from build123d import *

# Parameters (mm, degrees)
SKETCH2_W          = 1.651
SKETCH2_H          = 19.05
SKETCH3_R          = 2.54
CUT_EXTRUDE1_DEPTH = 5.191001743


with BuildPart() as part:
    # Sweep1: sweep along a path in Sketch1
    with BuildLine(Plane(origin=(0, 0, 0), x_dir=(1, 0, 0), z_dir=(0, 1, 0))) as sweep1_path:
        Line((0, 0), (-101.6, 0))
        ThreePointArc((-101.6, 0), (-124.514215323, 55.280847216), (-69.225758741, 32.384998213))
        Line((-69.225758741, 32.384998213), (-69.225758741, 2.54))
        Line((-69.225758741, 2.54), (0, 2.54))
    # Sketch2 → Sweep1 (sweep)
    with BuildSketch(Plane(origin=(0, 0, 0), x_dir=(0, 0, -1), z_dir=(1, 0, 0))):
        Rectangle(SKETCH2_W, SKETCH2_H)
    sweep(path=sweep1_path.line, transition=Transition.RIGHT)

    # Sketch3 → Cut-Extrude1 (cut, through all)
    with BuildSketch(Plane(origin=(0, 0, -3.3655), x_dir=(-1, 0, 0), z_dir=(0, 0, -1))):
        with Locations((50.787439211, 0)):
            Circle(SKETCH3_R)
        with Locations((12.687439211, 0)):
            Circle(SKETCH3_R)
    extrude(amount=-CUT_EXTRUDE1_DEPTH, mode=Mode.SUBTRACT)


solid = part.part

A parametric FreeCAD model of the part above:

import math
import FreeCAD as App
import Part
import Sketcher

V = App.Vector
Q = App.Units.Quantity

doc = App.newDocument("Part")
body = doc.addObject("PartDesign::Body", "Body")

# Sketch on YZ plane
sketch1 = body.newObject("Sketcher::SketchObject", "Sketch")
sketch1.AttachmentSupport = (doc.getObject("YZ_Plane"), [""])
sketch1.MapMode = "FlatFace"
sketch1.addGeometry([
    Part.LineSegment(V(9.5, 0.8, 0), V(-9.5, 0.8, 0)),
    Part.LineSegment(V(-9.5, 0.8, 0), V(-9.5, -0.8, 0)),
    Part.LineSegment(V(-9.5, -0.8, 0), V(9.5, -0.8, 0)),
    Part.LineSegment(V(9.5, -0.8, 0), V(9.5, 0.8, 0)),
], False)
sketch1.addConstraint([
    Sketcher.Constraint("Coincident", 0, 2, 1, 1),
    Sketcher.Constraint("Coincident", 1, 2, 2, 1),
    Sketcher.Constraint("Coincident", 2, 2, 3, 1),
    Sketcher.Constraint("Coincident", 3, 2, 0, 1),
    Sketcher.Constraint("Horizontal", 0),
    Sketcher.Constraint("Vertical", 1),
    Sketcher.Constraint("Horizontal", 2),
    Sketcher.Constraint("Vertical", 3),
    Sketcher.Constraint("Symmetric", 0, 2, 2, 2, -1, 1),
    Sketcher.Constraint("DistanceX", 0, 2, 0, 1, Q("0.75 in")),
    Sketcher.Constraint("DistanceY", 1, 2, 1, 1, Q("0.065 in")),
])

# Sketch on XZ plane
sketch2 = body.newObject("Sketcher::SketchObject", "Sketch001")
sketch2.AttachmentSupport = (doc.getObject("XZ_Plane"), [""])
sketch2.MapMode = "FlatFace"
sketch2.addGeometry([
    Part.LineSegment(V(0, 0, 0), V(-102, 0, 0)),
    Part.ArcOfCircle(Part.Circle(V(-102, -32, 0), V(0, 0, 1), 32), math.radians(90), math.radians(360)),
    Part.LineSegment(V(-69, -32, 0), V(-69, -3, 0)),
    Part.LineSegment(V(-69, -3, 0), V(0, -3, 0)),
], False)
sketch2.addConstraint([
    Sketcher.Constraint("Coincident", 0, 2, 1, 1),
    Sketcher.Constraint("Tangent", 1, 2, 2, 1),
    Sketcher.Constraint("Coincident", 2, 2, 3, 1),
    Sketcher.Constraint("Horizontal", 0),
    Sketcher.Constraint("Vertical", 2),
    Sketcher.Constraint("Horizontal", 3),
    Sketcher.Constraint("Coincident", 0, 1, -1, 1),
    Sketcher.Constraint("PointOnObject", 3, 2, -2),
    Sketcher.Constraint("DistanceX", 0, 2, 0, 1, Q("4 in")),
    Sketcher.Constraint("Radius", 1, Q("1.275 in")),
    Sketcher.Constraint("DistanceY", 2, 2, -1, 1, Q("0.1 in")),
    Sketcher.Constraint("DistanceX", 3, 1, 3, 2, Q("69.225759 mm")),
])
doc.recompute()

additivepipe = body.newObject("PartDesign::AdditivePipe", "AdditivePipe")
additivepipe.Profile = sketch1
additivepipe.Spine = (sketch2, ["Edge1", "Edge2", "Edge3", "Edge4"])
additivepipe.Transition = "Right corner"

# Sketch on XY plane
sketch3 = body.newObject("Sketcher::SketchObject", "Sketch002")
sketch3.AttachmentSupport = (doc.getObject("XY_Plane"), [""])
sketch3.MapMode = "FlatFace"
sketch3.AttachmentOffset = App.Placement(V(0, 0, -0.1325 * 25.4), App.Rotation())
sketch3.addGeometry([
    Part.Circle(V(-50.8, 0, 0), V(0, 0, 1), 2.5),
    Part.Circle(V(-12.7, 0, 0), V(0, 0, 1), 2.5),
], False)
sketch3.addConstraint([
    Sketcher.Constraint("Equal", 0, 1),
    Sketcher.Constraint("PointOnObject", 0, 3, -1),
    Sketcher.Constraint("PointOnObject", 1, 3, -1),
    Sketcher.Constraint("Diameter", 0, Q("0.2 in")),
    Sketcher.Constraint("DistanceX", 0, 3, 1, 3, Q("1.5 in")),
    Sketcher.Constraint("DistanceX", 0, 3, -1, 1, Q("50.787439 mm")),
])
pocket1 = body.newObject("PartDesign::Pocket", "Pocket")
pocket1.Profile = sketch3
pocket1.Type = "ThroughAll"
pocket1.Reversed = True

doc.recompute()
